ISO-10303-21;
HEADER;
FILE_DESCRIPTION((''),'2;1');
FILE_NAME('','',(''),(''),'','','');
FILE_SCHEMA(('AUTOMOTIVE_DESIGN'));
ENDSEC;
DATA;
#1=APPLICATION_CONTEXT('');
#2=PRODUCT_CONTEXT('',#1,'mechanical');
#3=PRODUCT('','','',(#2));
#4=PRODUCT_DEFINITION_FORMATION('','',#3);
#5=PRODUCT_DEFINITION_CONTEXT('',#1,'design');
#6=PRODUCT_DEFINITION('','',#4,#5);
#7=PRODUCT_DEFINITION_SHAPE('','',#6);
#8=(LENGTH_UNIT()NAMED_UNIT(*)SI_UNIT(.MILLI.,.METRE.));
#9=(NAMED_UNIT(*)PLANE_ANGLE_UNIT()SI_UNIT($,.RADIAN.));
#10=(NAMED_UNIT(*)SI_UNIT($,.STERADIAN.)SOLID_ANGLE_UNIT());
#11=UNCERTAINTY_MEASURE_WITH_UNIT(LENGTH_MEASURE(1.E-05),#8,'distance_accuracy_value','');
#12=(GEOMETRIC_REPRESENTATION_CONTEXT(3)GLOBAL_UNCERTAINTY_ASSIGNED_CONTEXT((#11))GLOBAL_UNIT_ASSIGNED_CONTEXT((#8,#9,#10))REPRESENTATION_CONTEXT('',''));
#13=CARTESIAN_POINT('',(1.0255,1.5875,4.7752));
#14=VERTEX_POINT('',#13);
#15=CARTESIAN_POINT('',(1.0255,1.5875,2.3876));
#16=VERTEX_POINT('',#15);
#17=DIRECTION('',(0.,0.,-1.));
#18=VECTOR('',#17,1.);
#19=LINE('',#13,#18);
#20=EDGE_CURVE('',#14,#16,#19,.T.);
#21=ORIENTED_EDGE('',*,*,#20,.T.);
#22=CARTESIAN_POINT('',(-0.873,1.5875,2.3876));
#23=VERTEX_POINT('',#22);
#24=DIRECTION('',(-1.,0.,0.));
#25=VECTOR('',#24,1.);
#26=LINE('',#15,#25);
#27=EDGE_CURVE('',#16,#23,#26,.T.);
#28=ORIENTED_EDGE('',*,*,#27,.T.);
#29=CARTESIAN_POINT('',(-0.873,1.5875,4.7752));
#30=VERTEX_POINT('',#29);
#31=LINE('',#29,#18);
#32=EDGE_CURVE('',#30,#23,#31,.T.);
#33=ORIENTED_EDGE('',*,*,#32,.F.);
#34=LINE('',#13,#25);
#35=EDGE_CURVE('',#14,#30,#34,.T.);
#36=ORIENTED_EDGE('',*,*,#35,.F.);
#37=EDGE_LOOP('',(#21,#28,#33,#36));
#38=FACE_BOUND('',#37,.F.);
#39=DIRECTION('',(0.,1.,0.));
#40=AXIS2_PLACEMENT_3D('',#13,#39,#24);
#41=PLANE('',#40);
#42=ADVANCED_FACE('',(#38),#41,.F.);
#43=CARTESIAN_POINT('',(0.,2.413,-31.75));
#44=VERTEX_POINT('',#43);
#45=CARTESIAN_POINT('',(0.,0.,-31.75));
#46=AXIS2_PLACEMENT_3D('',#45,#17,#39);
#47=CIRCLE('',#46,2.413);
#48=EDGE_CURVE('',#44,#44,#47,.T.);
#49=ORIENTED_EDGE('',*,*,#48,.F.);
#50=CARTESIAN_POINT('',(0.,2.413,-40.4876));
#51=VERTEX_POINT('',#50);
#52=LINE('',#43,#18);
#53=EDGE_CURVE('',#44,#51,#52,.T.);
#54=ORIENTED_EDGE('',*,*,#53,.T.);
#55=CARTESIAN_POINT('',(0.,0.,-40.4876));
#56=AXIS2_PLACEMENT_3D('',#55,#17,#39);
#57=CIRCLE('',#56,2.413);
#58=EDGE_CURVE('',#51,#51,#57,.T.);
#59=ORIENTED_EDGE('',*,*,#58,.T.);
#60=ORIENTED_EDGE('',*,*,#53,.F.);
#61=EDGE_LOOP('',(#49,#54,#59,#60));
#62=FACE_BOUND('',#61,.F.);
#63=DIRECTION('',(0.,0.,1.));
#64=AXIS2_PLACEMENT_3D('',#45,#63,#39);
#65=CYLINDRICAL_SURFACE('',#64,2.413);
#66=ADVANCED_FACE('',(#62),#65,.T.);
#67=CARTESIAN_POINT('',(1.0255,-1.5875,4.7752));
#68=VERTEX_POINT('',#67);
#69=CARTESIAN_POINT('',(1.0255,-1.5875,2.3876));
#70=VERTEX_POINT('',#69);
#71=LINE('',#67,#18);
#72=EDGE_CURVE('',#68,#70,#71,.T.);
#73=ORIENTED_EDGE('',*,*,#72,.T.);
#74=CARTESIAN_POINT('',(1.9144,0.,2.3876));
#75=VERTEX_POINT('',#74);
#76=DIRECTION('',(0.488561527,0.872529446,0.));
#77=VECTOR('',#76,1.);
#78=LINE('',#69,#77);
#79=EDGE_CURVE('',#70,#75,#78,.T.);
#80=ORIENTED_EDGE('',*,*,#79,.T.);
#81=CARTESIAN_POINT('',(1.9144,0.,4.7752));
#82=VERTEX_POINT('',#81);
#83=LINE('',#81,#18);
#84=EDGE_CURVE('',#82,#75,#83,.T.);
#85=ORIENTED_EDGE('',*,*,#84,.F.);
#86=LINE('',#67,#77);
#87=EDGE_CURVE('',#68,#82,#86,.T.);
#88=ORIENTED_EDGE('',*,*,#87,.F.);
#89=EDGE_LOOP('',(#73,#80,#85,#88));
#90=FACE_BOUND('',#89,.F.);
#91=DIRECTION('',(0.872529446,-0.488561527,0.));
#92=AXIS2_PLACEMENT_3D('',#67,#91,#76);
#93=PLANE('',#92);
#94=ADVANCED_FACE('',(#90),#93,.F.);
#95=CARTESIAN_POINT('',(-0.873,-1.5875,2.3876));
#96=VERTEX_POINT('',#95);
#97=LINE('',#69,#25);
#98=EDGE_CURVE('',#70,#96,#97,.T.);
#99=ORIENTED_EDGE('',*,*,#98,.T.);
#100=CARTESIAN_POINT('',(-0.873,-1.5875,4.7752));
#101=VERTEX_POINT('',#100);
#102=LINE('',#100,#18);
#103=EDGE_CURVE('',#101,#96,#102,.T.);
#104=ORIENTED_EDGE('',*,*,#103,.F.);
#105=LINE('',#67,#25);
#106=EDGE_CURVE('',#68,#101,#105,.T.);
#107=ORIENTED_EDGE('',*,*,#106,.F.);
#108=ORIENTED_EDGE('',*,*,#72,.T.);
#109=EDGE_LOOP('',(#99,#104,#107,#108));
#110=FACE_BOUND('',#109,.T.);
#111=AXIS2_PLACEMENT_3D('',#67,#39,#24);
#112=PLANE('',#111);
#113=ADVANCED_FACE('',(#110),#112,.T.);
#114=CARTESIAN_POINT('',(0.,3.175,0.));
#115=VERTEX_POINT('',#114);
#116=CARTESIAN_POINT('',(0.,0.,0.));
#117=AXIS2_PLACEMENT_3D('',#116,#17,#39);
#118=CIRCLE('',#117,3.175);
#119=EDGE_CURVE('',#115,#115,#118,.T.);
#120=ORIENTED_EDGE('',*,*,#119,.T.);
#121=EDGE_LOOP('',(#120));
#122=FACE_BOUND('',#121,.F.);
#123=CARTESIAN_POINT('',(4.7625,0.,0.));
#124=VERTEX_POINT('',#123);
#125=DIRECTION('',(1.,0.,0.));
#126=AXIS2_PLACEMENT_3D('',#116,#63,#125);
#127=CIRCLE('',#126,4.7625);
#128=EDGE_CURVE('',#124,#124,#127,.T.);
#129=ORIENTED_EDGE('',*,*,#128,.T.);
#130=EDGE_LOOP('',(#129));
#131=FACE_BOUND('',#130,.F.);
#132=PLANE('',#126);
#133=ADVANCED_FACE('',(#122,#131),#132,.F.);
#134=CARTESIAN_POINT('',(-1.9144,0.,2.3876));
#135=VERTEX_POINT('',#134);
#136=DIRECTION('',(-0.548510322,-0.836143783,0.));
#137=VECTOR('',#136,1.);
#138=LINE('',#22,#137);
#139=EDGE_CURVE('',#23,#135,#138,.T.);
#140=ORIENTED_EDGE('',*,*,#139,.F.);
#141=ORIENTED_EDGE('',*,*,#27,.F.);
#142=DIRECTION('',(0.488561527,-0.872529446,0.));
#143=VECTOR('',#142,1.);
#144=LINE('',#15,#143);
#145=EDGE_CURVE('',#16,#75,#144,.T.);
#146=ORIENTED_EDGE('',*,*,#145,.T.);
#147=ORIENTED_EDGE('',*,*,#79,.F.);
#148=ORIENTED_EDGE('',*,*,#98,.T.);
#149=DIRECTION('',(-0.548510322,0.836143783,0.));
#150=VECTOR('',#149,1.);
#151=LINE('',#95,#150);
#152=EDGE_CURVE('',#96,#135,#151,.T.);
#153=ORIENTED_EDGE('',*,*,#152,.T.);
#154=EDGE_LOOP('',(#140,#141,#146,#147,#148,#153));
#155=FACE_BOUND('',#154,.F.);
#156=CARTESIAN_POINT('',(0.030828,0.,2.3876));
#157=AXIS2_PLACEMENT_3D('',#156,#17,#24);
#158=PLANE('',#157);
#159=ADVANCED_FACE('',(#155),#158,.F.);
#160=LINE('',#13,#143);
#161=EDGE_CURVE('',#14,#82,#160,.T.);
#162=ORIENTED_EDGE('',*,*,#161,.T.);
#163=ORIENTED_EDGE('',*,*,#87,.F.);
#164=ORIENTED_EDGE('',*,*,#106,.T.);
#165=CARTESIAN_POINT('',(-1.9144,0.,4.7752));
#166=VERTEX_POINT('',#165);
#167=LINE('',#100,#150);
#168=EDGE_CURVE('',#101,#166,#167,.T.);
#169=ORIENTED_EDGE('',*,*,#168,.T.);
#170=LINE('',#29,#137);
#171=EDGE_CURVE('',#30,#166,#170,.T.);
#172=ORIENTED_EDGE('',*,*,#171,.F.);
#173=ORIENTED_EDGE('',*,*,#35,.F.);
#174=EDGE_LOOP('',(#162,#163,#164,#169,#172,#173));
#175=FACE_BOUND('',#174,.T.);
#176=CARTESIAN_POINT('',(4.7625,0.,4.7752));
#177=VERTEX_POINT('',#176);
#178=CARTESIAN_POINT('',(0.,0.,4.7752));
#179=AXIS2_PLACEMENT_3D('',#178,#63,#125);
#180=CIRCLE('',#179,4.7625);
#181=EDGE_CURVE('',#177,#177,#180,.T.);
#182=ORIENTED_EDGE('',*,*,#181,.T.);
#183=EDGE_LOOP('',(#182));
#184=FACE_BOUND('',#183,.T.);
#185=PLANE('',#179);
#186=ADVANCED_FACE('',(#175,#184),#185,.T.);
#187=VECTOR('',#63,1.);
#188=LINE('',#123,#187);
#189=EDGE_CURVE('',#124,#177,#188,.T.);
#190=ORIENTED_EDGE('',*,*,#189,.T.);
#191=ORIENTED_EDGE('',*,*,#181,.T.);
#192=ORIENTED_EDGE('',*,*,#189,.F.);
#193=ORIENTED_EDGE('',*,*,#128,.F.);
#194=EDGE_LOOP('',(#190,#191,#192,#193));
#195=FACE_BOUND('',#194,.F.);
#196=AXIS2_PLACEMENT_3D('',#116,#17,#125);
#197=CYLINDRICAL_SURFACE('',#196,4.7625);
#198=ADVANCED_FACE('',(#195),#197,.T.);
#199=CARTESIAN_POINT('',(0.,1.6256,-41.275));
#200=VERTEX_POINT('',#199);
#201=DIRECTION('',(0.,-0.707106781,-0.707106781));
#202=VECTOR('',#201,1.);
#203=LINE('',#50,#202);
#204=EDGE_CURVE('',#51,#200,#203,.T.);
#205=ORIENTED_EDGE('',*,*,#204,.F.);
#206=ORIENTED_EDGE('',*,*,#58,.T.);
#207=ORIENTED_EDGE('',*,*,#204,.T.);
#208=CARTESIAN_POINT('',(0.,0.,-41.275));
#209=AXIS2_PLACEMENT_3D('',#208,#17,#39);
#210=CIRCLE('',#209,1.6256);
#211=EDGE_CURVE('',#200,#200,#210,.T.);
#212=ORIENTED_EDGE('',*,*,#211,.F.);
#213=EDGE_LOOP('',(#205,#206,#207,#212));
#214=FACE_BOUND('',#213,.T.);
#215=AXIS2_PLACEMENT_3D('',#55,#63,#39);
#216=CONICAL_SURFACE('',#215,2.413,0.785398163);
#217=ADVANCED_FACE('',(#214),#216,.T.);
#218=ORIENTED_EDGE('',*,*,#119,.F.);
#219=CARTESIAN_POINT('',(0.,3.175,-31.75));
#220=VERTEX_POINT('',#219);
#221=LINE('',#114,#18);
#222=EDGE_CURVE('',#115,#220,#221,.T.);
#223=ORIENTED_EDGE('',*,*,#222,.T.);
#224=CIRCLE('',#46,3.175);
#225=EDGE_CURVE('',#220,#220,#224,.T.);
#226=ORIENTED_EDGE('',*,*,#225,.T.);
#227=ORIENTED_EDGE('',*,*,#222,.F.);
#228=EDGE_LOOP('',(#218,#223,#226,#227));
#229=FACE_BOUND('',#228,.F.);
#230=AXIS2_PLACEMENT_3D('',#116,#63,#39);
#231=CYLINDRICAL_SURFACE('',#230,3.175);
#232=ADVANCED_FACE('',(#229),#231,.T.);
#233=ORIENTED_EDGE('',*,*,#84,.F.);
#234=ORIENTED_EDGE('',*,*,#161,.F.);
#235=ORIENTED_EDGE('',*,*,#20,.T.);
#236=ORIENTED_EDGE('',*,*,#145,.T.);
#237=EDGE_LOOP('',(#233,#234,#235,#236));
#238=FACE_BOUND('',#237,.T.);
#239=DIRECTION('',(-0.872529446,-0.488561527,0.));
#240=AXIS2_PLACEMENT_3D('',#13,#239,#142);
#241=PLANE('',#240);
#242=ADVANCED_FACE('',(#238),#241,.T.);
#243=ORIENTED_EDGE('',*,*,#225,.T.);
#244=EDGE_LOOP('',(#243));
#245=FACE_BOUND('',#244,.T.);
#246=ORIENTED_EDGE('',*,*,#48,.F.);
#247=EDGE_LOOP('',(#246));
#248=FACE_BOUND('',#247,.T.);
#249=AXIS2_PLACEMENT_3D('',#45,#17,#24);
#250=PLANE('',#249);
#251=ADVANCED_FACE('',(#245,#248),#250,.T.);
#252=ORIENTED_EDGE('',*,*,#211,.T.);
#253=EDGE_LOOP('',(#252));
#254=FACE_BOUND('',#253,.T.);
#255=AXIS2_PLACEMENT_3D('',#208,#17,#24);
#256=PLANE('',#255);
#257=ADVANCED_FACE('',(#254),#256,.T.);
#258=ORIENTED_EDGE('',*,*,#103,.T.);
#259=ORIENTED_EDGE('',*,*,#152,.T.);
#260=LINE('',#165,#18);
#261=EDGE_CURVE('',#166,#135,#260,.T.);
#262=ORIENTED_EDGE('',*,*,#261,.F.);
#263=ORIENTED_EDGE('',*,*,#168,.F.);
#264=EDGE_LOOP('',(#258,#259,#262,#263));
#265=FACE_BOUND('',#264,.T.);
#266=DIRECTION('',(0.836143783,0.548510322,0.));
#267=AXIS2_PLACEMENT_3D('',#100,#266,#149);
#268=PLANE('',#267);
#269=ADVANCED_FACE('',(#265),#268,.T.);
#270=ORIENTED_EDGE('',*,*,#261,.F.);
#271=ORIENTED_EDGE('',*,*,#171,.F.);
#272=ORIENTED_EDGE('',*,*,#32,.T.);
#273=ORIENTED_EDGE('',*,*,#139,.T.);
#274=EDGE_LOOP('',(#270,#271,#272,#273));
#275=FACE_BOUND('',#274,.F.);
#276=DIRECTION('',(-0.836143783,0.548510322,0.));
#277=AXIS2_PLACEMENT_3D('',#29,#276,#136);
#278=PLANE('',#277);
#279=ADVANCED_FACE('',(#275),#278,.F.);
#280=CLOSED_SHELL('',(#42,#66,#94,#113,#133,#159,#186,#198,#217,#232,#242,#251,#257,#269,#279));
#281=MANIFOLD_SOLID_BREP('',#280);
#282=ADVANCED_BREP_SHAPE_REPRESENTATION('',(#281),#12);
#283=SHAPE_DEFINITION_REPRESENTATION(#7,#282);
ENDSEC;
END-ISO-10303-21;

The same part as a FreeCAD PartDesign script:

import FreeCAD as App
import Part
import Sketcher
Q = App.Units.Quantity


def edges_at(feature, points):
    """Names of the edges that pass closest to the given points."""
    edges = feature.Shape.Edges
    near = lambda p: min(range(len(edges)), key=lambda i: edges[i].distToShape(Part.Vertex(*p))[0])
    return sorted({f"Edge{near(p) + 1}" for p in points})

doc = App.newDocument("Part")
body = doc.addObject("PartDesign::Body", "Body")

sketch1 = doc.addObject("Sketcher::SketchObject", "Sketch")
body.addObject(sketch1)
sketch1.AttachmentSupport = (doc.XY_Plane, [""])
sketch1.MapMode = "FlatFace"
sketch1.addGeometry(Part.Circle(App.Vector(0, 0, 0), App.Vector(0, 0, 1), 4.7625), False)
sketch1.addConstraint([
    Sketcher.Constraint("Coincident", 0, 3, -1, 1),
    Sketcher.Constraint("Diameter", 0, Q("0.375 in")),
])
pad1 = doc.addObject("PartDesign::Pad", "Pad")
body.addObject(pad1)
pad1.Profile = sketch1
pad1.Length = Q("0.188 in")

sketch2 = doc.addObject("Sketcher::SketchObject", "Sketch001")
body.addObject(sketch2)
sketch2.AttachmentSupport = (doc.XY_Plane, [""])
sketch2.MapMode = "FlatFace"
sketch2.addGeometry(Part.Circle(App.Vector(0, 0, 0), App.Vector(0, 0, 1), 3.175), False)
sketch2.addConstraint([
    Sketcher.Constraint("Coincident", 0, 3, -1, 1),
    Sketcher.Constraint("Diameter", 0, Q("0.25 in")),
])
pad2 = doc.addObject("PartDesign::Pad", "Pad001")
body.addObject(pad2)
pad2.Profile = sketch2
pad2.Length = Q("1.25 in")
pad2.Reversed = True

sketch3 = doc.addObject("Sketcher::SketchObject", "Sketch002")
body.addObject(sketch3)
sketch3.AttachmentSupport = (doc.XY_Plane, [""])
sketch3.MapMode = "FlatFace"
sketch3.AttachmentOffset = App.Placement(App.Vector(0, 0, -1.25 * 25.4), App.Rotation())
sketch3.addGeometry(Part.Circle(App.Vector(0, 0, 0), App.Vector(0, 0, 1), 2.413), False)
sketch3.addConstraint([
    Sketcher.Constraint("Coincident", 0, 3, -1, 1),
    Sketcher.Constraint("Diameter", 0, Q("0.19 in")),
])
pad3 = doc.addObject("PartDesign::Pad", "Pad002")
body.addObject(pad3)
pad3.Profile = sketch3
pad3.Length = Q("0.375 in")
pad3.Reversed = True

sketch4 = doc.addObject("Sketcher::SketchObject", "Sketch003")
body.addObject(sketch4)
sketch4.AttachmentSupport = (doc.XY_Plane, [""])
sketch4.MapMode = "FlatFace"
sketch4.AttachmentOffset = App.Placement(App.Vector(0, 0, 0.188 * 25.4), App.Rotation())
sketch4.addGeometry([
    Part.LineSegment(App.Vector(-1.9144, 0, 0), App.Vector(-0.873, -1.5875, 0)),
    Part.LineSegment(App.Vector(-0.873, -1.5875, 0), App.Vector(1.0255, -1.5875, 0)),
    Part.LineSegment(App.Vector(1.0255, -1.5875, 0), App.Vector(1.9144, 0, 0)),
    Part.LineSegment(App.Vector(1.9144, 0, 0), App.Vector(1.0255, 1.5875, 0)),
    Part.LineSegment(App.Vector(1.0255, 1.5875, 0), App.Vector(-0.873, 1.5875, 0)),
    Part.LineSegment(App.Vector(-0.873, 1.5875, 0), App.Vector(-1.9144, 0, 0)),
], False)
sketch4.addConstraint([
    Sketcher.Constraint("Coincident", 0, 2, 1, 1),
    Sketcher.Constraint("Coincident", 1, 2, 2, 1),
    Sketcher.Constraint("Coincident", 2, 2, 3, 1),
    Sketcher.Constraint("Coincident", 3, 2, 4, 1),
    Sketcher.Constraint("Coincident", 4, 2, 5, 1),
    Sketcher.Constraint("Coincident", 5, 2, 0, 1),
    Sketcher.Constraint("Horizontal", 1),
    Sketcher.Constraint("Horizontal", 4),
    Sketcher.Constraint("Symmetric", 2, 2, 5, 2, -1, 1),
    Sketcher.Constraint("Symmetric", 1, 2, 3, 2, -1),
    Sketcher.Constraint("PointOnObject", 2, 2, -1),
    Sketcher.Constraint("Vertical", 0, 2, 4, 2),
    Sketcher.Constraint("DistanceY", 0, 2, -1, 1, Q("0.0625 in")),
    Sketcher.Constraint("DistanceX", 1, 2, 2, 2, Q("0.035 in")),
    Sketcher.Constraint("DistanceX", 5, 2, 0, 2, Q("0.041 in")),
    Sketcher.Constraint("DistanceX", 1, 1, 1, 2, 1.8985),
])
pocket1 = doc.addObject("PartDesign::Pocket", "Pocket")
body.addObject(pocket1)
pocket1.Profile = sketch4
pocket1.Length = Q("0.094 in")
doc.recompute()

chamfer = doc.addObject("PartDesign::Chamfer", "Chamfer")
body.addObject(chamfer)
chamfer.Base = (pocket1, edges_at(pocket1, [(0, -2.413, -41.275)]))
chamfer.Size = Q("0.031 in")

doc.recompute()
